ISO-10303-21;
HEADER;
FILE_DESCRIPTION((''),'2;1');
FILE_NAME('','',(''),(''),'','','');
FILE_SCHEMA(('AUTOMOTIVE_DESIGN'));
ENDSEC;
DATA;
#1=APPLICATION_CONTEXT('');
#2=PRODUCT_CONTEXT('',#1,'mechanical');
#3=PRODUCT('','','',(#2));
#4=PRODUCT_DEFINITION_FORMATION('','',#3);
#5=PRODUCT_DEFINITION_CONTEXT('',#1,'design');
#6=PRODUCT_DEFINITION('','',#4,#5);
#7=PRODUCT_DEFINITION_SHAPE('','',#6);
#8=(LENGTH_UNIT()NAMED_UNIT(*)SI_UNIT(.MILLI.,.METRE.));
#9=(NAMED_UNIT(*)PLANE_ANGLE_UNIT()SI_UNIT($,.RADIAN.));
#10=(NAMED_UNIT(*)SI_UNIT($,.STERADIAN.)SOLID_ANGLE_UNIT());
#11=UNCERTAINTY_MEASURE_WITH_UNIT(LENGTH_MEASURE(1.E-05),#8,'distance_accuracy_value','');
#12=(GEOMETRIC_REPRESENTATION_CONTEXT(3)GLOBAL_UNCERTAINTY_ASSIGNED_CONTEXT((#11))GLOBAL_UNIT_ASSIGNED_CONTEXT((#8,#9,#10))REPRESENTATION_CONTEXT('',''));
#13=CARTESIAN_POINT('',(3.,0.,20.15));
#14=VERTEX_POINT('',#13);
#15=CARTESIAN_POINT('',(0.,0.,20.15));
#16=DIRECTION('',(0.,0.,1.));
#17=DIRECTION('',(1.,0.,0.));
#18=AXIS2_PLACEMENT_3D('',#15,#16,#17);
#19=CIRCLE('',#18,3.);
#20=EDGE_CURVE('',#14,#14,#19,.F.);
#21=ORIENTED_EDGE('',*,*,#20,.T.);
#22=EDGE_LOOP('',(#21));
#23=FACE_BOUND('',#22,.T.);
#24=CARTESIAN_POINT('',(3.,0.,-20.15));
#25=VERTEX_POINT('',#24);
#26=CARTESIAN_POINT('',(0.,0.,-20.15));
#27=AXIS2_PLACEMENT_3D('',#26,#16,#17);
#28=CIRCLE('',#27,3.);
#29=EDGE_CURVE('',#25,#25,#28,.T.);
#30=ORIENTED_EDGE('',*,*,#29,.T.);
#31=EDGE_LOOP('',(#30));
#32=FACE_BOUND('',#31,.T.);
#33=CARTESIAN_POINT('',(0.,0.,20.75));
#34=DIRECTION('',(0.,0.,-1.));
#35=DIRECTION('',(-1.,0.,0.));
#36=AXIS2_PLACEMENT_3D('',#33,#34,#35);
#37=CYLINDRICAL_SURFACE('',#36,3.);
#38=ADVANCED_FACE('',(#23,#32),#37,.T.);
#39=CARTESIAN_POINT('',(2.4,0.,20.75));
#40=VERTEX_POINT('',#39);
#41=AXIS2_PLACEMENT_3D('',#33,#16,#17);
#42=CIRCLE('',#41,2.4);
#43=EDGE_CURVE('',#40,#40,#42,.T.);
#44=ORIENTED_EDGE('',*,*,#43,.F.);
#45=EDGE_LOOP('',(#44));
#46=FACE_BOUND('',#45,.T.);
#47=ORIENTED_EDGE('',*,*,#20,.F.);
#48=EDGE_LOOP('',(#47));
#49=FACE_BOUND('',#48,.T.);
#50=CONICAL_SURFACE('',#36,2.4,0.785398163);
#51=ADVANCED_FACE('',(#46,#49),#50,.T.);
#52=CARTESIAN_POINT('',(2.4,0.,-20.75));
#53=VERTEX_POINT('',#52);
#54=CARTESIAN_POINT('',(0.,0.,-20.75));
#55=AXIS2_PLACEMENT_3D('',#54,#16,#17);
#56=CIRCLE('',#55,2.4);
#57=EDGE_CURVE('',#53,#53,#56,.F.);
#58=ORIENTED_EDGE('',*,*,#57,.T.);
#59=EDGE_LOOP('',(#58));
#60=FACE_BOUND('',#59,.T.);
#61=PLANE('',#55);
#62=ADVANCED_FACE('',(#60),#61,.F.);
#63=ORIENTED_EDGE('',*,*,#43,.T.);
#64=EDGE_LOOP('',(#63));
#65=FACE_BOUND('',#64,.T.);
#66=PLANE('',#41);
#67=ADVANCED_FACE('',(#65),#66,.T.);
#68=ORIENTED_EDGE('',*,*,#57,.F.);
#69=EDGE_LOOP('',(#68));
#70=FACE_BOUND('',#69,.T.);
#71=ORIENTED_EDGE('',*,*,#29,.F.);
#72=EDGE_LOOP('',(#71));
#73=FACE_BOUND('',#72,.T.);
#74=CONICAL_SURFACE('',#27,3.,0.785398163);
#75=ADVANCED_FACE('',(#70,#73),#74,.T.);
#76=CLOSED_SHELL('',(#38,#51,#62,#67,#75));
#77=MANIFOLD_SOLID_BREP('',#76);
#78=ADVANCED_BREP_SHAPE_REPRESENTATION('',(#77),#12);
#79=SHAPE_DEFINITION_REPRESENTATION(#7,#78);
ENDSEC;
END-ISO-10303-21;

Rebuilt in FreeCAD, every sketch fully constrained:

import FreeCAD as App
import Part
import Sketcher

V = App.Vector
Q = App.Units.Quantity


def edges_at(feature, points):
    """Names of the edges that pass closest to the given points."""
    edges = feature.Shape.Edges
    near = lambda p: min(range(len(edges)), key=lambda i: edges[i].distToShape(Part.Vertex(*p))[0])
    return sorted({f"Edge{near(p) + 1}" for p in points})

doc = App.newDocument("Part")
params = doc.addObject("Spreadsheet::Sheet", "Params")
for row, (alias, value) in enumerate([
    ("sketch1_diameter", "6 mm"),
    ("pad1_length", "41.5 mm"),
    ("chamfer_size", "0.6 mm"),
], start=1):
    params.set(f"A{row}", alias)
    params.set(f"B{row}", "=" + value)
    params.setAlias(f"B{row}", alias)

body = doc.addObject("PartDesign::Body", "Body")

# Sketch on XY plane
sketch1 = doc.addObject("Sketcher::SketchObject", "Sketch")
body.addObject(sketch1)
sketch1.AttachmentSupport = (doc.XY_Plane, [""])
sketch1.MapMode = "FlatFace"
sketch1.addGeometry(Part.Circle(V(0, 0, 0), V(0, 0, 1), 3), False)
sketch1.addConstraint([
    Sketcher.Constraint("Coincident", 0, 3, -1, 1),
    Sketcher.Constraint("Diameter", 0, Q("6 mm")),
])
sketch1.setExpression("Constraints[1]", "Params.sketch1_diameter")
pad1 = doc.addObject("PartDesign::Pad", "Pad")
body.addObject(pad1)
pad1.Profile = sketch1
pad1.setExpression("Length", "Params.pad1_length")
pad1.Midplane = True
doc.recompute()

chamfer = doc.addObject("PartDesign::Chamfer", "Chamfer")
body.addObject(chamfer)
chamfer.Base = (pad1, edges_at(pad1, [(-3, 0, -20.75), (-3, 0, 20.75)]))
chamfer.setExpression("Size", "Params.chamfer_size")

doc.recompute()
